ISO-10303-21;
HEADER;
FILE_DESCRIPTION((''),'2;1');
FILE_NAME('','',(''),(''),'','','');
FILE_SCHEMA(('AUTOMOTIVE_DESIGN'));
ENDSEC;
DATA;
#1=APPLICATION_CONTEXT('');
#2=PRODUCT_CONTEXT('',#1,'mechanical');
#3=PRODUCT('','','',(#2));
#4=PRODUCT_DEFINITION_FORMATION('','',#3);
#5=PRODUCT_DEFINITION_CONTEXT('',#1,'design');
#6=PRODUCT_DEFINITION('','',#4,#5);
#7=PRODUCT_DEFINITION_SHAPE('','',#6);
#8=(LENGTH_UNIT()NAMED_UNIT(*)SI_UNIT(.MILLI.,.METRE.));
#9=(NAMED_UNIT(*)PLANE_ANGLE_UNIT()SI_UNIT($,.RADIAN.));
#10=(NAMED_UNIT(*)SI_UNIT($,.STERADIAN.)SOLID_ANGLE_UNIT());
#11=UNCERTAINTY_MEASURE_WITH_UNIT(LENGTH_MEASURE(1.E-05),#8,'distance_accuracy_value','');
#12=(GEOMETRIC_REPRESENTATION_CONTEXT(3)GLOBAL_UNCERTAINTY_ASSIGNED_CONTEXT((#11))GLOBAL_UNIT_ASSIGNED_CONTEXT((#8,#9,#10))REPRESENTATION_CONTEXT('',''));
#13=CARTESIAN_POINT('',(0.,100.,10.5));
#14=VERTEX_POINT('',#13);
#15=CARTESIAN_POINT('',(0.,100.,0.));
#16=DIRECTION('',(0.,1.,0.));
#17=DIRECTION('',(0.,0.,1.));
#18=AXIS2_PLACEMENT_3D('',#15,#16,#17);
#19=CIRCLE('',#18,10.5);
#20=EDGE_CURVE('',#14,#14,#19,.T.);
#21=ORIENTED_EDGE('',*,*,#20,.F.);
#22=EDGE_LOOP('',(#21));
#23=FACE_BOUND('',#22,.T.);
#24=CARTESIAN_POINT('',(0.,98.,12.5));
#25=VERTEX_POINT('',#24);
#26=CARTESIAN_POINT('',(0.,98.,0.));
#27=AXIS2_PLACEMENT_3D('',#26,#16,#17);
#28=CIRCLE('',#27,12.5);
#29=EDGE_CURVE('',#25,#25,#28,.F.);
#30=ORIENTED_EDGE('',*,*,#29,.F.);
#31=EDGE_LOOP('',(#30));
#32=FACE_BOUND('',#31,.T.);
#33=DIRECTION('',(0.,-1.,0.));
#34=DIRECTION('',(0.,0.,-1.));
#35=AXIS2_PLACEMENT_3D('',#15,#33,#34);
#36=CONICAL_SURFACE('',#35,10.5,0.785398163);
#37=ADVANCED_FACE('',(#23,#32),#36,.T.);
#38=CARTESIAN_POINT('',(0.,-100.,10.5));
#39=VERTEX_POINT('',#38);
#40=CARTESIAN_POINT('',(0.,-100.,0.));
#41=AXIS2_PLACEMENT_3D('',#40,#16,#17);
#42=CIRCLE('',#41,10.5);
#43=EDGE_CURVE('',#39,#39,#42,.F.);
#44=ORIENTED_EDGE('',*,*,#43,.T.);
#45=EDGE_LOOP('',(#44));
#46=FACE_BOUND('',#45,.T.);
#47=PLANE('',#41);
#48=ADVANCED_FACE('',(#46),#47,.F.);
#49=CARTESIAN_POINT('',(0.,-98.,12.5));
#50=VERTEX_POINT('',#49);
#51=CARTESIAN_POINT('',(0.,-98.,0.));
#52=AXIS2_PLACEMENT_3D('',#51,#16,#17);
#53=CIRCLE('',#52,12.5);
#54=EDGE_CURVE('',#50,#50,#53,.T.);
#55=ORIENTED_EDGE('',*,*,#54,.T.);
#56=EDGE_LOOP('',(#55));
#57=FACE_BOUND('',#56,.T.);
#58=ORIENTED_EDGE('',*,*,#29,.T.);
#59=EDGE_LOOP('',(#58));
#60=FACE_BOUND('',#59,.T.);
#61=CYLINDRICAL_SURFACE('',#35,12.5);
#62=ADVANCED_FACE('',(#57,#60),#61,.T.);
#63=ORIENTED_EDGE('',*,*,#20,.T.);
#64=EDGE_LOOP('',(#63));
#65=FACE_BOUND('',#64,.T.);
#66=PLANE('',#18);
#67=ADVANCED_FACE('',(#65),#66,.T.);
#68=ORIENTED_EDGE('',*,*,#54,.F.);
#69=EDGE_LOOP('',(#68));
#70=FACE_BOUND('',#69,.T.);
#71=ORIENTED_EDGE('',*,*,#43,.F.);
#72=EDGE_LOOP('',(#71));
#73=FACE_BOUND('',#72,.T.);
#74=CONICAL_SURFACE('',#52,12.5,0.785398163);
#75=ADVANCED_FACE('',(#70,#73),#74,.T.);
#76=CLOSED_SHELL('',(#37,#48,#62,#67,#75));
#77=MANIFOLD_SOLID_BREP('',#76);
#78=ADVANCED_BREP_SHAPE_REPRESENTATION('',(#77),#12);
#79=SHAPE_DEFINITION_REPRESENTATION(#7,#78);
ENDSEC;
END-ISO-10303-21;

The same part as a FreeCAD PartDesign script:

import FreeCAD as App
import Part
import Sketcher

V = App.Vector


def edges_at(feature, points):
    """Names of the edges that pass closest to the given points."""
    edges = feature.Shape.Edges
    near = lambda p: min(range(len(edges)), key=lambda i: edges[i].distToShape(Part.Vertex(*p))[0])
    return sorted({f"Edge{near(p) + 1}" for p in points})

doc = App.newDocument("Part")
body = doc.addObject("PartDesign::Body", "Body")

# Sketch on XZ plane
sketch1 = body.newObject("Sketcher::SketchObject", "Sketch")
sketch1.AttachmentSupport = (doc.getObject("XZ_Plane"), [""])
sketch1.MapMode = "FlatFace"
sketch1.addGeometry(Part.Circle(V(0, 0, 0), V(0, 0, 1), 12), False)
sketch1.addConstraint(Sketcher.Constraint("Coincident", 0, 3, -1, 1))
sketch1.addConstraint(Sketcher.Constraint("Diameter", 0, 25.0))
pad1 = body.newObject("PartDesign::Pad", "Pad")
pad1.Profile = sketch1
pad1.Length = 200
pad1.Midplane = True
doc.recompute()

chamfer = body.newObject("PartDesign::Chamfer", "Chamfer")
chamfer.Base = (pad1, edges_at(pad1, [(-12.5, -100, 0), (-12.5, 100, 0)]))
chamfer.Size = 2

doc.recompute()
